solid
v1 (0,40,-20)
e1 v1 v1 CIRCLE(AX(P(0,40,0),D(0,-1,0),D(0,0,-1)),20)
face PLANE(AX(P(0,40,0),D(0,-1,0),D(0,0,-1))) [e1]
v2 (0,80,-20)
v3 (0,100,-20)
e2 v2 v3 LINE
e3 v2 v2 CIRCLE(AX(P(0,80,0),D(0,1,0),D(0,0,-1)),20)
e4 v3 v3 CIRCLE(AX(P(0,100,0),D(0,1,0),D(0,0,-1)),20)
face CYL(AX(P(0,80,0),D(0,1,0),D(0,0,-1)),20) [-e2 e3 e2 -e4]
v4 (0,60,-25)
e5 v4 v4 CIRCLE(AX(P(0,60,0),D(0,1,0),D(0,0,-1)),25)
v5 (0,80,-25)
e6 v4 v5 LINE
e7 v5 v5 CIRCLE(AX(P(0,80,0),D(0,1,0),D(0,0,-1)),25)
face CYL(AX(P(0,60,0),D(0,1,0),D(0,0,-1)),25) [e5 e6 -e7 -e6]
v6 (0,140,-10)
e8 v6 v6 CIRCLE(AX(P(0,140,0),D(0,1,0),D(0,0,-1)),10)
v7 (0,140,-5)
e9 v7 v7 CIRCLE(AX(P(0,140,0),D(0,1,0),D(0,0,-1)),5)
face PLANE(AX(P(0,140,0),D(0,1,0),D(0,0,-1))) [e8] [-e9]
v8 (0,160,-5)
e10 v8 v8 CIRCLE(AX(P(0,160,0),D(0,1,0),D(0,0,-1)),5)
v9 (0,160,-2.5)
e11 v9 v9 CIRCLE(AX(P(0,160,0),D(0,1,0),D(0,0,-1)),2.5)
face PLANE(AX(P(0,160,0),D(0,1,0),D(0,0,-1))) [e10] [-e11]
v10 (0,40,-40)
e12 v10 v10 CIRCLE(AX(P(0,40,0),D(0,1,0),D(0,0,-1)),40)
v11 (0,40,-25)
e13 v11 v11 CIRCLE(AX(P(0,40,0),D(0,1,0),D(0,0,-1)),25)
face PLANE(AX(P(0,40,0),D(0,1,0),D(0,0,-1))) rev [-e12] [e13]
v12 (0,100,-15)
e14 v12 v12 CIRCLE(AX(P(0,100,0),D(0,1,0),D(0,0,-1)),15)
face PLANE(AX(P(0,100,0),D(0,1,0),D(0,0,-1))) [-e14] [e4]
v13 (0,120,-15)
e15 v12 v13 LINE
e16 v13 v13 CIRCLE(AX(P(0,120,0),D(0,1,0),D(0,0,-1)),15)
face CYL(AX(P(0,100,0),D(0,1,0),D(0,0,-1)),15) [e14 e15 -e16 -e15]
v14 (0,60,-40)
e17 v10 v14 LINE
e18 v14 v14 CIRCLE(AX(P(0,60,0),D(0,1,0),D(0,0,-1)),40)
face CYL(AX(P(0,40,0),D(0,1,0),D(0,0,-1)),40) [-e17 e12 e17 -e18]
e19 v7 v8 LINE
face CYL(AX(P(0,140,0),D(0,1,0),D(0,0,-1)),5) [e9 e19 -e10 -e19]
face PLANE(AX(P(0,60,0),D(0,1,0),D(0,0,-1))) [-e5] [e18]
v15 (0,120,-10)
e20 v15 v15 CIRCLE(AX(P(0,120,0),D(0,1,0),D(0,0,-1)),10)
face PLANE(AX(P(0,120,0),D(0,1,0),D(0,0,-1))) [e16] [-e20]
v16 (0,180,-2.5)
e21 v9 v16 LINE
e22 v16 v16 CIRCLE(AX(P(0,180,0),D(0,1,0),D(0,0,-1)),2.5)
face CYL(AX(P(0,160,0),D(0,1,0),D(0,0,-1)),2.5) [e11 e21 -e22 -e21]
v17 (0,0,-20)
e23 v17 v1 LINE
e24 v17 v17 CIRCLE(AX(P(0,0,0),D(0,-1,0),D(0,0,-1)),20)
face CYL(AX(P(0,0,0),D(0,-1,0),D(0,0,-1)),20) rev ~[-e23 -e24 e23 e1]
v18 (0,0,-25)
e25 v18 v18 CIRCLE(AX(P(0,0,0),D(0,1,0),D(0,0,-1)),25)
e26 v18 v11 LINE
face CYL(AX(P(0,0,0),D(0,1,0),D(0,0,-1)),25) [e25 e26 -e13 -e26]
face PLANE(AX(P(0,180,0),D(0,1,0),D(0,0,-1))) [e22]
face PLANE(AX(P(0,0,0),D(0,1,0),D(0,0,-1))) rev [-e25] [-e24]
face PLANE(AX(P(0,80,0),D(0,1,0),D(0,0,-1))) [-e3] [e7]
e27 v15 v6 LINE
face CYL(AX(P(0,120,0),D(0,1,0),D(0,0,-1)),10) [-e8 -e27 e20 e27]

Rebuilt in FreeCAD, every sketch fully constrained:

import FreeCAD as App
import Part
import Sketcher
from FreeCAD import Vector

doc = App.newDocument("Part")
body = doc.addObject("PartDesign::Body", "Body")

sketch1 = body.newObject("Sketcher::SketchObject", "Sketch")
sketch1.AttachmentSupport = (doc.getObject("XY_Plane"), [""])
sketch1.MapMode = "FlatFace"
sketch1.addGeometry(Part.LineSegment(Vector(0, 0, 0), Vector(25, 0, 0)), False)
sketch1.addGeometry(Part.LineSegment(Vector(25, 0, 0), Vector(25, 40, 0)), False)
sketch1.addGeometry(Part.LineSegment(Vector(25, 40, 0), Vector(40, 40, 0)), False)
sketch1.addGeometry(Part.LineSegment(Vector(40, 40, 0), Vector(40, 60, 0)), False)
sketch1.addGeometry(Part.LineSegment(Vector(40, 60, 0), Vector(25, 60, 0)), False)
sketch1.addGeometry(Part.LineSegment(Vector(25, 60, 0), Vector(25, 80, 0)), False)
sketch1.addGeometry(Part.LineSegment(Vector(25, 80, 0), Vector(20, 80, 0)), False)
sketch1.addGeometry(Part.LineSegment(Vector(20, 80, 0), Vector(20, 100, 0)), False)
sketch1.addGeometry(Part.LineSegment(Vector(20, 100, 0), Vector(15, 100, 0)), False)
sketch1.addGeometry(Part.LineSegment(Vector(15, 100, 0), Vector(15, 120, 0)), False)
sketch1.addGeometry(Part.LineSegment(Vector(15, 120, 0), Vector(10, 120, 0)), False)
sketch1.addGeometry(Part.LineSegment(Vector(10, 120, 0), Vector(10, 140, 0)), False)
sketch1.addGeometry(Part.LineSegment(Vector(10, 140, 0), Vector(5, 140, 0)), False)
sketch1.addGeometry(Part.LineSegment(Vector(5, 140, 0), Vector(5, 160, 0)), False)
sketch1.addGeometry(Part.LineSegment(Vector(5, 160, 0), Vector(2.5, 160, 0)), False)
sketch1.addGeometry(Part.LineSegment(Vector(2.5, 160, 0), Vector(2.5, 180, 0)), False)
sketch1.addGeometry(Part.LineSegment(Vector(2.5, 180, 0), Vector(0, 180, 0)), False)
sketch1.addGeometry(Part.LineSegment(Vector(0, 180, 0), Vector(0, 0, 0)), False)
sketch1.addConstraint(Sketcher.Constraint("Coincident", 0, 2, 1, 1))
sketch1.addConstraint(Sketcher.Constraint("Coincident", 1, 2, 2, 1))
sketch1.addConstraint(Sketcher.Constraint("Coincident", 2, 2, 3, 1))
sketch1.addConstraint(Sketcher.Constraint("Coincident", 3, 2, 4, 1))
sketch1.addConstraint(Sketcher.Constraint("Coincident", 4, 2, 5, 1))
sketch1.addConstraint(Sketcher.Constraint("Coincident", 5, 2, 6, 1))
sketch1.addConstraint(Sketcher.Constraint("Coincident", 6, 2, 7, 1))
sketch1.addConstraint(Sketcher.Constraint("Coincident", 7, 2, 8, 1))
sketch1.addConstraint(Sketcher.Constraint("Coincident", 8, 2, 9, 1))
sketch1.addConstraint(Sketcher.Constraint("Coincident", 9, 2, 10, 1))
sketch1.addConstraint(Sketcher.Constraint("Coincident", 10, 2, 11, 1))
sketch1.addConstraint(Sketcher.Constraint("Coincident", 11, 2, 12, 1))
sketch1.addConstraint(Sketcher.Constraint("Coincident", 12, 2, 13, 1))
sketch1.addConstraint(Sketcher.Constraint("Coincident", 13, 2, 14, 1))
sketch1.addConstraint(Sketcher.Constraint("Coincident", 14, 2, 15, 1))
sketch1.addConstraint(Sketcher.Constraint("Coincident", 15, 2, 16, 1))
sketch1.addConstraint(Sketcher.Constraint("Coincident", 16, 2, 17, 1))
sketch1.addConstraint(Sketcher.Constraint("Coincident", 17, 2, 0, 1))
sketch1.addConstraint(Sketcher.Constraint("Horizontal", 0))
sketch1.addConstraint(Sketcher.Constraint("Vertical", 1))
sketch1.addConstraint(Sketcher.Constraint("Horizontal", 2))
sketch1.addConstraint(Sketcher.Constraint("Vertical", 3))
sketch1.addConstraint(Sketcher.Constraint("Horizontal", 4))
sketch1.addConstraint(Sketcher.Constraint("Vertical", 5))
sketch1.addConstraint(Sketcher.Constraint("Horizontal", 6))
sketch1.addConstraint(Sketcher.Constraint("Vertical", 7))
sketch1.addConstraint(Sketcher.Constraint("Horizontal", 8))
sketch1.addConstraint(Sketcher.Constraint("Vertical", 9))
sketch1.addConstraint(Sketcher.Constraint("Horizontal", 10))
sketch1.addConstraint(Sketcher.Constraint("Vertical", 11))
sketch1.addConstraint(Sketcher.Constraint("Horizontal", 12))
sketch1.addConstraint(Sketcher.Constraint("Vertical", 13))
sketch1.addConstraint(Sketcher.Constraint("Horizontal", 14))
sketch1.addConstraint(Sketcher.Constraint("Vertical", 15))
sketch1.addConstraint(Sketcher.Constraint("Horizontal", 16))
sketch1.addConstraint(Sketcher.Constraint("Vertical", 17))
sketch1.addConstraint(Sketcher.Constraint("Coincident", 17, 2, -1, 1))
sketch1.addConstraint(Sketcher.Constraint("Vertical", 1, 2, 4, 2))
sketch1.addConstraint(Sketcher.Constraint("Equal", 6, 8))
sketch1.addConstraint(Sketcher.Constraint("Equal", 8, 10))
sketch1.addConstraint(Sketcher.Constraint("Equal", 10, 12))
sketch1.addConstraint(Sketcher.Constraint("Equal", 14, 16))
sketch1.addConstraint(Sketcher.Constraint("Equal", 3, 5))
sketch1.addConstraint(Sketcher.Constraint("Equal", 5, 7))
sketch1.addConstraint(Sketcher.Constraint("Equal", 7, 9))
sketch1.addConstraint(Sketcher.Constraint("Equal", 9, 11))
sketch1.addConstraint(Sketcher.Constraint("Equal", 11, 13))
sketch1.addConstraint(Sketcher.Constraint("Equal", 13, 15))
sketch1.addConstraint(Sketcher.Constraint("DistanceX", 0, 1, 0, 2, 25.0))
sketch1.addConstraint(Sketcher.Constraint("DistanceX", 2, 1, 2, 2, 15.0))
sketch1.addConstraint(Sketcher.Constraint("DistanceX", 6, 2, 6, 1, 5.0))
sketch1.addConstraint(Sketcher.Constraint("DistanceY", 1, 1, 1, 2, 40.0))
sketch1.addConstraint(Sketcher.Constraint("DistanceY", 3, 1, 3, 2, 20.0))
revolution = body.newObject("PartDesign::Revolution", "Revolution")
revolution.Profile = sketch1
revolution.ReferenceAxis = (sketch1, ["V_Axis"])
revolution.Angle = 360

sketch2 = body.newObject("Sketcher::SketchObject", "Sketch001")
sketch2.AttachmentSupport = (doc.getObject("XZ_Plane"), [""])
sketch2.MapMode = "FlatFace"
sketch2.addGeometry(Part.Circle(Vector(0, 0, 0), Vector(0, 0, 1), 20), False)
sketch2.addConstraint(Sketcher.Constraint("Coincident", 0, 3, -1, 1))
sketch2.addConstraint(Sketcher.Constraint("Diameter", 0, 40.0))
pocket1 = body.newObject("PartDesign::Pocket", "Pocket")
pocket1.Profile = sketch2
pocket1.Length = 40

doc.recompute()
